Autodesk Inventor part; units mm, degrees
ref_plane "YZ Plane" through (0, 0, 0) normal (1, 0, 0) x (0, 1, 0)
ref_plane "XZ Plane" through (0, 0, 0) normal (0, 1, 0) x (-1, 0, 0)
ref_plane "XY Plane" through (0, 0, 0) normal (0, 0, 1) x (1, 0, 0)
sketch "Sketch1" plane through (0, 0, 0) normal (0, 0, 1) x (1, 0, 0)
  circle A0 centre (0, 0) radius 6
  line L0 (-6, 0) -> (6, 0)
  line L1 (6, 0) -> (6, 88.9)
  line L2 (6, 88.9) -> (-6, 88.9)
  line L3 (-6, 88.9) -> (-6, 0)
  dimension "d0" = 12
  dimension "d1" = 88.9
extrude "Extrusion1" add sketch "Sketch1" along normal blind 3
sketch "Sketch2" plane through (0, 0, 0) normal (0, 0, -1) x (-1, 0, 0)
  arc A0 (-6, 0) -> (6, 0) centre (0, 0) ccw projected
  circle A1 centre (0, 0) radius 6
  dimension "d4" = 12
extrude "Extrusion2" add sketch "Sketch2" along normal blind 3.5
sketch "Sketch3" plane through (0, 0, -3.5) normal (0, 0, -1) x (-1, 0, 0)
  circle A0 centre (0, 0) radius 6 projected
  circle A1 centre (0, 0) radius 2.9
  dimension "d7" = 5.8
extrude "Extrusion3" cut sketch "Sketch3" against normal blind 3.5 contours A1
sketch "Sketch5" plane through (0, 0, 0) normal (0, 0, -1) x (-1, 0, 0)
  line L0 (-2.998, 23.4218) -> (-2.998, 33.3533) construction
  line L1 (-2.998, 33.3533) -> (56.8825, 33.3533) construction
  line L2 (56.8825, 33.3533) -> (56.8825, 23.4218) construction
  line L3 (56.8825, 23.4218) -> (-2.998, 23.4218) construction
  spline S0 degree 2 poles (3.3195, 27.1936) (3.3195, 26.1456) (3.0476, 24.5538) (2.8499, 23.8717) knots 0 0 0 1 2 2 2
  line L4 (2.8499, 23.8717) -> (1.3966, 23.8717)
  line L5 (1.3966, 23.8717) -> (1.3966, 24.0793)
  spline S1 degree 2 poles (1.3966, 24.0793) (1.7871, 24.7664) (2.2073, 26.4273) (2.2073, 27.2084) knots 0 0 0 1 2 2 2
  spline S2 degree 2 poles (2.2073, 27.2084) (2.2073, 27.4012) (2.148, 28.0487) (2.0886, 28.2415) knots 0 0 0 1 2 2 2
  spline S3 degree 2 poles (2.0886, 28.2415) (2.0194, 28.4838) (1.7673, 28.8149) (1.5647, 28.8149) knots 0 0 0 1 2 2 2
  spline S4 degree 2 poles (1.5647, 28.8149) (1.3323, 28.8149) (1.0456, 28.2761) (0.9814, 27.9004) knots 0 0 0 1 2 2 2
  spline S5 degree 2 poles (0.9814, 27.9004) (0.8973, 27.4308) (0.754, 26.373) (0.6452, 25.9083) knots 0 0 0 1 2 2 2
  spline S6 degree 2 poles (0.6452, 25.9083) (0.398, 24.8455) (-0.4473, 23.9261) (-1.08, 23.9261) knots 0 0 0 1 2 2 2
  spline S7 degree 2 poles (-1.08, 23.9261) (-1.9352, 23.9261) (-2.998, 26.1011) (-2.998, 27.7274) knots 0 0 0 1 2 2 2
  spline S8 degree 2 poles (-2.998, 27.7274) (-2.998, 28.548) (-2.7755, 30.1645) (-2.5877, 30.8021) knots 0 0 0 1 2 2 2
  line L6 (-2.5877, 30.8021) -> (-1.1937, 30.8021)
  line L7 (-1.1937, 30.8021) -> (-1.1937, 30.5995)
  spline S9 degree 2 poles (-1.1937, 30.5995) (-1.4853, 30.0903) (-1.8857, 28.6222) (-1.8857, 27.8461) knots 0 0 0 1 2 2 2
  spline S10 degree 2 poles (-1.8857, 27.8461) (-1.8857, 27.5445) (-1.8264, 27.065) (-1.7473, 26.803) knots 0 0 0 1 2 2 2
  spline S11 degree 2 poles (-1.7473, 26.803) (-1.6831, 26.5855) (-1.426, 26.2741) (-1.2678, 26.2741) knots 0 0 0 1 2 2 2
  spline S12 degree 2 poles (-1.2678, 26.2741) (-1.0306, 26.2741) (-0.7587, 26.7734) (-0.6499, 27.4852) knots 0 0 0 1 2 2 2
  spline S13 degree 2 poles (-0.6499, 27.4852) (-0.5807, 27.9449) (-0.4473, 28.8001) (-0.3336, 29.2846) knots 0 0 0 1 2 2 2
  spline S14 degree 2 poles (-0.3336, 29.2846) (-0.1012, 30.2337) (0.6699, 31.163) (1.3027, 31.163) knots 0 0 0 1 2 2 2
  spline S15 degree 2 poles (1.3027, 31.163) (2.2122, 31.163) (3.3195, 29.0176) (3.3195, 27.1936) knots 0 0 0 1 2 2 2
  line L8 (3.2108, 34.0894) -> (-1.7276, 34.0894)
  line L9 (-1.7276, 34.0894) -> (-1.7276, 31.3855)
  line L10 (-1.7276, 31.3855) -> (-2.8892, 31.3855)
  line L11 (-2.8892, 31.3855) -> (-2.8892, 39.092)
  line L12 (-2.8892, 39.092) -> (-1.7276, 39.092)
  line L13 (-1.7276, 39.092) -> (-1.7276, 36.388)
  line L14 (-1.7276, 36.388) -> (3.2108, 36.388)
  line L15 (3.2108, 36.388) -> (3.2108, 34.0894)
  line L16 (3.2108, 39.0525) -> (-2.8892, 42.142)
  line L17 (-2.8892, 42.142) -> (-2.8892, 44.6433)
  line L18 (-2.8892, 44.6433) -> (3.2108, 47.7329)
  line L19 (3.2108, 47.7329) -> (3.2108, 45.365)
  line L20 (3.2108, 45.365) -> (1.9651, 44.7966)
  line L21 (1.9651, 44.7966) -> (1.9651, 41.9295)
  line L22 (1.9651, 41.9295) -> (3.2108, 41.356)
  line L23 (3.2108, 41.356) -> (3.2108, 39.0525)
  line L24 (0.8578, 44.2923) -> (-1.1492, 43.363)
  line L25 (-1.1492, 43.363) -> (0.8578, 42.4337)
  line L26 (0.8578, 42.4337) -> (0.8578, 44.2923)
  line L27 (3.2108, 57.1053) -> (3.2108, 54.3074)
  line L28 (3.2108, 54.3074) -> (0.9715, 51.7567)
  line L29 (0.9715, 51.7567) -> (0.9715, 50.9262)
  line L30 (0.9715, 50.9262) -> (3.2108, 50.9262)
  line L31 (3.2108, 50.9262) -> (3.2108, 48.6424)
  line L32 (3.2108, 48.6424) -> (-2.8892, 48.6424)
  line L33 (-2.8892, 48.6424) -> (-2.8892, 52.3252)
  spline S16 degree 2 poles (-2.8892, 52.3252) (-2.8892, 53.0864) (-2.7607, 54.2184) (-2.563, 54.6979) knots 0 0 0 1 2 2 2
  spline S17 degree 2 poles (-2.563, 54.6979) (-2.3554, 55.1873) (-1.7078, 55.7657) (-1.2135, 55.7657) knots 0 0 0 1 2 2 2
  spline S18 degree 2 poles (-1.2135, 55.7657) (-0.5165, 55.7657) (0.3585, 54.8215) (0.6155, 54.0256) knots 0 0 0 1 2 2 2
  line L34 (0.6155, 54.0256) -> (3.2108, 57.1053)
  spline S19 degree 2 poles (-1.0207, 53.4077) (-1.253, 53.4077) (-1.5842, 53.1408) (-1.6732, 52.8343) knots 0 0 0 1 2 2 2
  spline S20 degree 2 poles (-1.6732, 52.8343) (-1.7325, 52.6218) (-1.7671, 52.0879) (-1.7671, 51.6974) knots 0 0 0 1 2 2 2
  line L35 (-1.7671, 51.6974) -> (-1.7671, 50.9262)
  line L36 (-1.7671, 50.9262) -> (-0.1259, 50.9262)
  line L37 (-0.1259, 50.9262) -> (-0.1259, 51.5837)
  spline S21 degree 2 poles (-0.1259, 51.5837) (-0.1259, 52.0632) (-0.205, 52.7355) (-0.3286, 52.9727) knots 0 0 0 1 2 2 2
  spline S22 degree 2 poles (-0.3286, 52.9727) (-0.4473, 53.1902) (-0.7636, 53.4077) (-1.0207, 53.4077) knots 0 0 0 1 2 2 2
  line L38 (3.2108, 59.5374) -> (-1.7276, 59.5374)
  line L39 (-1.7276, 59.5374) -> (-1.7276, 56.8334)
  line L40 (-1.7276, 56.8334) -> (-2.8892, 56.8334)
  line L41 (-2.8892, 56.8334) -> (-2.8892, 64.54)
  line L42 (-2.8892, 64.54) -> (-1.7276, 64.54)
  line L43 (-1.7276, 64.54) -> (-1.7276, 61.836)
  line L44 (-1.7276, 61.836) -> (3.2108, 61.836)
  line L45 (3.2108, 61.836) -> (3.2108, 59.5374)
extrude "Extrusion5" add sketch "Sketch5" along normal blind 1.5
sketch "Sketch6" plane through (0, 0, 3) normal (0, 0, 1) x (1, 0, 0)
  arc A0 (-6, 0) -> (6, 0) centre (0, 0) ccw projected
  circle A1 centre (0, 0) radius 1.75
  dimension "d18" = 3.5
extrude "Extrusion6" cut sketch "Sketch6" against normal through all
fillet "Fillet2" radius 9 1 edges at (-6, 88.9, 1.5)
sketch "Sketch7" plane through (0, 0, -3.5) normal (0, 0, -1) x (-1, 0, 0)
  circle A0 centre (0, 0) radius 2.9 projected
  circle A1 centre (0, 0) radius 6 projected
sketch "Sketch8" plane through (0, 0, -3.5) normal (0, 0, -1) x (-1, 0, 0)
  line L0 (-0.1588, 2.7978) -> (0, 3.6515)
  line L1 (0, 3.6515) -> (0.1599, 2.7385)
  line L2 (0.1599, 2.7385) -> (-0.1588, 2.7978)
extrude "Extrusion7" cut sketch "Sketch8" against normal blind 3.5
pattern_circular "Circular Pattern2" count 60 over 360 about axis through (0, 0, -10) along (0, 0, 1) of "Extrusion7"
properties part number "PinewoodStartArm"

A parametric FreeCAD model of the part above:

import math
import FreeCAD as App
import Part
import Sketcher
from FreeCAD import Vector
Q = App.Units.Quantity


def edges_at(feature, points):
    """Names of the edges that pass closest to the given points."""
    edges = feature.Shape.Edges
    near = lambda p: min(range(len(edges)), key=lambda i: edges[i].distToShape(Part.Vertex(*p))[0])
    return sorted({f"Edge{near(p) + 1}" for p in points})

doc = App.newDocument("Part")
body = doc.addObject("PartDesign::Body", "Body")

sketch1 = body.newObject("Sketcher::SketchObject", "Sketch")
sketch1.AttachmentSupport = (doc.getObject("XY_Plane"), [""])
sketch1.MapMode = "FlatFace"
sketch1.addGeometry([
    Part.ArcOfCircle(Part.Circle(Vector(0, 0, 0), Vector(0, 0, 1), 6), math.radians(180), math.radians(360)),
    Part.LineSegment(Vector(6, 0, 0), Vector(6, 88.9, 0)),
    Part.LineSegment(Vector(6, 88.9, 0), Vector(-6, 88.9, 0)),
    Part.LineSegment(Vector(-6, 88.9, 0), Vector(-6, 0, 0)),
], False)
sketch1.addConstraint([
    Sketcher.Constraint("Tangent", 0, 2, 1, 1),
    Sketcher.Constraint("Coincident", 1, 2, 2, 1),
    Sketcher.Constraint("Coincident", 2, 2, 3, 1),
    Sketcher.Constraint("Tangent", 3, 2, 0, 1),
    Sketcher.Constraint("Vertical", 1),
    Sketcher.Constraint("Horizontal", 2),
    Sketcher.Constraint("Vertical", 3),
    Sketcher.Constraint("Coincident", 0, 3, -1, 1),
    Sketcher.Constraint("Radius", 0, Q("6 mm")),
    Sketcher.Constraint("DistanceY", 1, 1, 1, 2, Q("88.9 mm")),
])
pad1 = body.newObject("PartDesign::Pad", "Pad")
pad1.Profile = sketch1
pad1.Length = 3

sketch2 = body.newObject("Sketcher::SketchObject", "Sketch001")
sketch2.AttachmentSupport = (doc.getObject("XY_Plane"), [""])
sketch2.MapMode = "FlatFace"
sketch2.addGeometry(Part.Circle(Vector(0, 0, 0), Vector(0, 0, 1), 6), False)
sketch2.addConstraint([
    Sketcher.Constraint("Coincident", 0, 3, -1, 1),
    Sketcher.Constraint("Diameter", 0, Q("12 mm")),
])
pad2 = body.newObject("PartDesign::Pad", "Pad001")
pad2.Profile = sketch2
pad2.Length = 3.5
pad2.Reversed = True

sketch3 = body.newObject("Sketcher::SketchObject", "Sketch002")
sketch3.AttachmentSupport = (doc.getObject("XY_Plane"), [""])
sketch3.MapMode = "FlatFace"
sketch3.AttachmentOffset = App.Placement(Vector(0, 0, -3.5), App.Rotation())
sketch3.addGeometry(Part.Circle(Vector(0, 0, 0), Vector(0, 0, 1), 2.9), False)
sketch3.addConstraint([
    Sketcher.Constraint("Coincident", 0, 3, -1, 1),
    Sketcher.Constraint("Diameter", 0, Q("5.8 mm")),
])
pocket1 = body.newObject("PartDesign::Pocket", "Pocket")
pocket1.Profile = sketch3
pocket1.Length = 3.5
pocket1.Reversed = True

sketch4 = body.newObject("Sketcher::SketchObject", "Sketch003")
sketch4.AttachmentSupport = (doc.getObject("XY_Plane"), [""])
sketch4.MapMode = "FlatFace"
sketch4.addGeometry([
    Part.BSplineCurve([Vector(-3.3195, 27.1936, 0), Vector(-3.3195, 26.1456, 0), Vector(-3.0476, 24.5538, 0), Vector(-2.8499, 23.8717, 0)], [3, 1, 3], [0, 1, 2], False, 2, [1, 1, 1, 1], False),
    Part.BSplineCurve([Vector(-1.3027, 31.163, 0), Vector(-2.2122, 31.163, 0), Vector(-3.3195, 29.0176, 0), Vector(-3.3195, 27.1936, 0)], [3, 1, 3], [0, 1, 2], False, 2, [1, 1, 1, 1], False),
    Part.BSplineCurve([Vector(0.3336, 29.2846, 0), Vector(0.1012, 30.2337, 0), Vector(-0.6699, 31.163, 0), Vector(-1.3027, 31.163, 0)], [3, 1, 3], [0, 1, 2], False, 2, [1, 1, 1, 1], False),
    Part.BSplineCurve([Vector(0.6499, 27.4852, 0), Vector(0.5807, 27.9449, 0), Vector(0.4473, 28.8001, 0), Vector(0.3336, 29.2846, 0)], [3, 1, 3], [0, 1, 2], False, 2, [1, 1, 1, 1], False),
    Part.BSplineCurve([Vector(1.2678, 26.2741, 0), Vector(1.0306, 26.2741, 0), Vector(0.7587, 26.7734, 0), Vector(0.6499, 27.4852, 0)], [3, 1, 3], [0, 1, 2], False, 2, [1, 1, 1, 1], False),
    Part.BSplineCurve([Vector(1.7473, 26.803, 0), Vector(1.6831, 26.5855, 0), Vector(1.426, 26.2741, 0), Vector(1.2678, 26.2741, 0)], [3, 1, 3], [0, 1, 2], False, 2, [1, 1, 1, 1], False),
    Part.BSplineCurve([Vector(1.8857, 27.8461, 0), Vector(1.8857, 27.5445, 0), Vector(1.8264, 27.065, 0), Vector(1.7473, 26.803, 0)], [3, 1, 3], [0, 1, 2], False, 2, [1, 1, 1, 1], False),
    Part.BSplineCurve([Vector(1.1937, 30.5995, 0), Vector(1.4853, 30.0903, 0), Vector(1.8857, 28.6222, 0), Vector(1.8857, 27.8461, 0)], [3, 1, 3], [0, 1, 2], False, 2, [1, 1, 1, 1], False),
    Part.LineSegment(Vector(1.1937, 30.5995, 0), Vector(1.1937, 30.8021, 0)),
    Part.LineSegment(Vector(1.1937, 30.8021, 0), Vector(2.5877, 30.8021, 0)),
    Part.BSplineCurve([Vector(2.998, 27.7274, 0), Vector(2.998, 28.548, 0), Vector(2.7755, 30.1645, 0), Vector(2.5877, 30.8021, 0)], [3, 1, 3], [0, 1, 2], False, 2, [1, 1, 1, 1], False),
    Part.BSplineCurve([Vector(1.08, 23.9261, 0), Vector(1.9352, 23.9261, 0), Vector(2.998, 26.1011, 0), Vector(2.998, 27.7274, 0)], [3, 1, 3], [0, 1, 2], False, 2, [1, 1, 1, 1], False),
    Part.BSplineCurve([Vector(-0.6452, 25.9083, 0), Vector(-0.398, 24.8455, 0), Vector(0.4473, 23.9261, 0), Vector(1.08, 23.9261, 0)], [3, 1, 3], [0, 1, 2], False, 2, [1, 1, 1, 1], False),
    Part.BSplineCurve([Vector(-0.9814, 27.9004, 0), Vector(-0.8973, 27.4308, 0), Vector(-0.754, 26.373, 0), Vector(-0.6452, 25.9083, 0)], [3, 1, 3], [0, 1, 2], False, 2, [1, 1, 1, 1], False),
    Part.BSplineCurve([Vector(-1.5647, 28.8149, 0), Vector(-1.3323, 28.8149, 0), Vector(-1.0456, 28.2761, 0), Vector(-0.9814, 27.9004, 0)], [3, 1, 3], [0, 1, 2], False, 2, [1, 1, 1, 1], False),
    Part.BSplineCurve([Vector(-2.0886, 28.2415, 0), Vector(-2.0194, 28.4838, 0), Vector(-1.7673, 28.8149, 0), Vector(-1.5647, 28.8149, 0)], [3, 1, 3], [0, 1, 2], False, 2, [1, 1, 1, 1], False),
    Part.BSplineCurve([Vector(-2.2073, 27.2084, 0), Vector(-2.2073, 27.4012, 0), Vector(-2.148, 28.0487, 0), Vector(-2.0886, 28.2415, 0)], [3, 1, 3], [0, 1, 2], False, 2, [1, 1, 1, 1], False),
    Part.BSplineCurve([Vector(-1.3966, 24.0793, 0), Vector(-1.7871, 24.7664, 0), Vector(-2.2073, 26.4273, 0), Vector(-2.2073, 27.2084, 0)], [3, 1, 3], [0, 1, 2], False, 2, [1, 1, 1, 1], False),
    Part.LineSegment(Vector(-1.3966, 24.0793, 0), Vector(-1.3966, 23.8717, 0)),
    Part.LineSegment(Vector(-1.3966, 23.8717, 0), Vector(-2.8499, 23.8717, 0)),
    Part.LineSegment(Vector(1.7276, 34.0894, 0), Vector(-3.2108, 34.0894, 0)),
    Part.LineSegment(Vector(-3.2108, 34.0894, 0), Vector(-3.2108, 36.388, 0)),
    Part.LineSegment(Vector(-3.2108, 36.388, 0), Vector(1.7276, 36.388, 0)),
    Part.LineSegment(Vector(1.7276, 36.388, 0), Vector(1.7276, 39.092, 0)),
    Part.LineSegment(Vector(1.7276, 39.092, 0), Vector(2.8892, 39.092, 0)),
    Part.LineSegment(Vector(2.8892, 39.092, 0), Vector(2.8892, 31.3855, 0)),
    Part.LineSegment(Vector(2.8892, 31.3855, 0), Vector(1.7276, 31.3855, 0)),
    Part.LineSegment(Vector(1.7276, 31.3855, 0), Vector(1.7276, 34.0894, 0)),
    Part.LineSegment(Vector(2.8892, 42.142, 0), Vector(-3.2108, 39.0525, 0)),
    Part.LineSegment(Vector(-3.2108, 39.0525, 0), Vector(-3.2108, 41.356, 0)),
    Part.LineSegment(Vector(-3.2108, 41.356, 0), Vector(-1.9651, 41.9295, 0)),
    Part.LineSegment(Vector(-1.9651, 41.9295, 0), Vector(-1.9651, 44.7966, 0)),
    Part.LineSegment(Vector(-1.9651, 44.7966, 0), Vector(-3.2108, 45.365, 0)),
    Part.LineSegment(Vector(-3.2108, 45.365, 0), Vector(-3.2108, 47.7329, 0)),
    Part.LineSegment(Vector(-3.2108, 47.7329, 0), Vector(2.8892, 44.6433, 0)),
    Part.LineSegment(Vector(2.8892, 44.6433, 0), Vector(2.8892, 42.142, 0)),
    Part.LineSegment(Vector(1.1492, 43.363, 0), Vector(-0.8578, 44.2923, 0)),
    Part.LineSegment(Vector(-0.8578, 44.2923, 0), Vector(-0.8578, 42.4337, 0)),
    Part.LineSegment(Vector(-0.8578, 42.4337, 0), Vector(1.1492, 43.363, 0)),
    Part.LineSegment(Vector(-3.2108, 54.3074, 0), Vector(-3.2108, 57.1053, 0)),
    Part.LineSegment(Vector(-3.2108, 57.1053, 0), Vector(-0.6155, 54.0256, 0)),
    Part.BSplineCurve([Vector(1.2135, 55.7657, 0), Vector(0.5165, 55.7657, 0), Vector(-0.3585, 54.8215, 0), Vector(-0.6155, 54.0256, 0)], [3, 1, 3], [0, 1, 2], False, 2, [1, 1, 1, 1], False),
    Part.BSplineCurve([Vector(2.563, 54.6979, 0), Vector(2.3554, 55.1873, 0), Vector(1.7078, 55.7657, 0), Vector(1.2135, 55.7657, 0)], [3, 1, 3], [0, 1, 2], False, 2, [1, 1, 1, 1], False),
    Part.BSplineCurve([Vector(2.8892, 52.3252, 0), Vector(2.8892, 53.0864, 0), Vector(2.7607, 54.2184, 0), Vector(2.563, 54.6979, 0)], [3, 1, 3], [0, 1, 2], False, 2, [1, 1, 1, 1], False),
    Part.LineSegment(Vector(2.8892, 52.3252, 0), Vector(2.8892, 48.6424, 0)),
    Part.LineSegment(Vector(2.8892, 48.6424, 0), Vector(-3.2108, 48.6424, 0)),
    Part.LineSegment(Vector(-3.2108, 48.6424, 0), Vector(-3.2108, 50.9262, 0)),
    Part.LineSegment(Vector(-3.2108, 50.9262, 0), Vector(-0.9715, 50.9262, 0)),
    Part.LineSegment(Vector(-0.9715, 50.9262, 0), Vector(-0.9715, 51.7567, 0)),
    Part.LineSegment(Vector(-0.9715, 51.7567, 0), Vector(-3.2108, 54.3074, 0)),
    Part.BSplineCurve([Vector(1.0207, 53.4077, 0), Vector(1.253, 53.4077, 0), Vector(1.5842, 53.1408, 0), Vector(1.6732, 52.8343, 0)], [3, 1, 3], [0, 1, 2], False, 2, [1, 1, 1, 1], False),
    Part.BSplineCurve([Vector(0.3286, 52.9727, 0), Vector(0.4473, 53.1902, 0), Vector(0.7636, 53.4077, 0), Vector(1.0207, 53.4077, 0)], [3, 1, 3], [0, 1, 2], False, 2, [1, 1, 1, 1], False),
    Part.BSplineCurve([Vector(0.1259, 51.5837, 0), Vector(0.1259, 52.0632, 0), Vector(0.205, 52.7355, 0), Vector(0.3286, 52.9727, 0)], [3, 1, 3], [0, 1, 2], False, 2, [1, 1, 1, 1], False),
    Part.LineSegment(Vector(0.1259, 51.5837, 0), Vector(0.1259, 50.9262, 0)),
    Part.LineSegment(Vector(0.1259, 50.9262, 0), Vector(1.7671, 50.9262, 0)),
    Part.LineSegment(Vector(1.7671, 50.9262, 0), Vector(1.7671, 51.6974, 0)),
    Part.BSplineCurve([Vector(1.6732, 52.8343, 0), Vector(1.7325, 52.6218, 0), Vector(1.7671, 52.0879, 0), Vector(1.7671, 51.6974, 0)], [3, 1, 3], [0, 1, 2], False, 2, [1, 1, 1, 1], False),
    Part.LineSegment(Vector(1.7276, 59.5374, 0), Vector(-3.2108, 59.5374, 0)),
    Part.LineSegment(Vector(-3.2108, 59.5374, 0), Vector(-3.2108, 61.836, 0)),
    Part.LineSegment(Vector(-3.2108, 61.836, 0), Vector(1.7276, 61.836, 0)),
    Part.LineSegment(Vector(1.7276, 61.836, 0), Vector(1.7276, 64.54, 0)),
    Part.LineSegment(Vector(1.7276, 64.54, 0), Vector(2.8892, 64.54, 0)),
    Part.LineSegment(Vector(2.8892, 64.54, 0), Vector(2.8892, 56.8334, 0)),
    Part.LineSegment(Vector(2.8892, 56.8334, 0), Vector(1.7276, 56.8334, 0)),
    Part.LineSegment(Vector(1.7276, 56.8334, 0), Vector(1.7276, 59.5374, 0)),
], False)
sketch4.addConstraint([
    Sketcher.Constraint("Block", 0),
    Sketcher.Constraint("Block", 1),
    Sketcher.Constraint("Block", 2),
    Sketcher.Constraint("Block", 3),
    Sketcher.Constraint("Block", 4),
    Sketcher.Constraint("Block", 5),
    Sketcher.Constraint("Block", 6),
    Sketcher.Constraint("Block", 7),
    Sketcher.Constraint("Block", 10),
    Sketcher.Constraint("Block", 11),
    Sketcher.Constraint("Block", 12),
    Sketcher.Constraint("Block", 13),
    Sketcher.Constraint("Block", 14),
    Sketcher.Constraint("Block", 15),
    Sketcher.Constraint("Block", 16),
    Sketcher.Constraint("Block", 17),
    Sketcher.Constraint("Block", 41),
    Sketcher.Constraint("Block", 42),
    Sketcher.Constraint("Block", 43),
    Sketcher.Constraint("Block", 50),
    Sketcher.Constraint("Block", 51),
    Sketcher.Constraint("Block", 52),
    Sketcher.Constraint("Block", 56),
    Sketcher.Constraint("Coincident", 7, 1, 8, 1),
    Sketcher.Constraint("Coincident", 8, 2, 9, 1),
    Sketcher.Constraint("Coincident", 9, 2, 10, 2),
    Sketcher.Constraint("Coincident", 17, 1, 18, 1),
    Sketcher.Constraint("Coincident", 18, 2, 19, 1),
    Sketcher.Constraint("Coincident", 19, 2, 0, 2),
    Sketcher.Constraint("Coincident", 20, 2, 21, 1),
    Sketcher.Constraint("Coincident", 21, 2, 22, 1),
    Sketcher.Constraint("Coincident", 22, 2, 23, 1),
    Sketcher.Constraint("Coincident", 23, 2, 24, 1),
    Sketcher.Constraint("Coincident", 24, 2, 25, 1),
    Sketcher.Constraint("Coincident", 25, 2, 26, 1),
    Sketcher.Constraint("Coincident", 26, 2, 27, 1),
    Sketcher.Constraint("Coincident", 27, 2, 20, 1),
    Sketcher.Constraint("Coincident", 28, 2, 29, 1),
    Sketcher.Constraint("Coincident", 29, 2, 30, 1),
    Sketcher.Constraint("Coincident", 30, 2, 31, 1),
    Sketcher.Constraint("Coincident", 31, 2, 32, 1),
    Sketcher.Constraint("Coincident", 32, 2, 33, 1),
    Sketcher.Constraint("Coincident", 33, 2, 34, 1),
    Sketcher.Constraint("Coincident", 34, 2, 35, 1),
    Sketcher.Constraint("Coincident", 35, 2, 28, 1),
    Sketcher.Constraint("Coincident", 36, 2, 37, 1),
    Sketcher.Constraint("Coincident", 37, 2, 38, 1),
    Sketcher.Constraint("Coincident", 38, 2, 36, 1),
    Sketcher.Constraint("Coincident", 39, 2, 40, 1),
    Sketcher.Constraint("Coincident", 40, 2, 41, 2),
    Sketcher.Constraint("Coincident", 43, 1, 44, 1),
    Sketcher.Constraint("Coincident", 44, 2, 45, 1),
    Sketcher.Constraint("Coincident", 45, 2, 46, 1),
    Sketcher.Constraint("Coincident", 46, 2, 47, 1),
    Sketcher.Constraint("Coincident", 47, 2, 48, 1),
    Sketcher.Constraint("Coincident", 48, 2, 49, 1),
    Sketcher.Constraint("Coincident", 49, 2, 39, 1),
    Sketcher.Constraint("Coincident", 52, 1, 53, 1),
    Sketcher.Constraint("Coincident", 53, 2, 54, 1),
    Sketcher.Constraint("Coincident", 54, 2, 55, 1),
    Sketcher.Constraint("Coincident", 55, 2, 56, 2),
    Sketcher.Constraint("Coincident", 57, 2, 58, 1),
    Sketcher.Constraint("Coincident", 58, 2, 59, 1),
    Sketcher.Constraint("Coincident", 59, 2, 60, 1),
    Sketcher.Constraint("Coincident", 60, 2, 61, 1),
    Sketcher.Constraint("Coincident", 61, 2, 62, 1),
    Sketcher.Constraint("Coincident", 62, 2, 63, 1),
    Sketcher.Constraint("Coincident", 63, 2, 64, 1),
    Sketcher.Constraint("Coincident", 64, 2, 57, 1),
    Sketcher.Constraint("Vertical", 8),
    Sketcher.Constraint("Horizontal", 9),
    Sketcher.Constraint("Vertical", 18),
    Sketcher.Constraint("Horizontal", 19),
    Sketcher.Constraint("Horizontal", 20),
    Sketcher.Constraint("Vertical", 21),
    Sketcher.Constraint("Horizontal", 22),
    Sketcher.Constraint("Vertical", 23),
    Sketcher.Constraint("Horizontal", 24),
    Sketcher.Constraint("Vertical", 25),
    Sketcher.Constraint("Horizontal", 26),
    Sketcher.Constraint("Vertical", 27),
    Sketcher.Constraint("Vertical", 29),
    Sketcher.Constraint("Vertical", 31),
    Sketcher.Constraint("Vertical", 33),
    Sketcher.Constraint("Vertical", 35),
    Sketcher.Constraint("Vertical", 37),
    Sketcher.Constraint("Vertical", 39),
    Sketcher.Constraint("Vertical", 44),
    Sketcher.Constraint("Horizontal", 45),
    Sketcher.Constraint("Vertical", 46),
    Sketcher.Constraint("Horizontal", 47),
    Sketcher.Constraint("Vertical", 48),
    Sketcher.Constraint("Vertical", 53),
    Sketcher.Constraint("Horizontal", 54),
    Sketcher.Constraint("Vertical", 55),
    Sketcher.Constraint("Horizontal", 57),
    Sketcher.Constraint("Vertical", 58),
    Sketcher.Constraint("Horizontal", 59),
    Sketcher.Constraint("Vertical", 60),
    Sketcher.Constraint("Horizontal", 61),
    Sketcher.Constraint("Vertical", 62),
    Sketcher.Constraint("Horizontal", 63),
    Sketcher.Constraint("Vertical", 64),
    Sketcher.Constraint("Horizontal", 47, 2, 53, 2),
    Sketcher.Constraint("Vertical", 23, 2, 26, 2),
    Sketcher.Constraint("Vertical", 21, 2, 28, 2),
    Sketcher.Constraint("Vertical", 29, 2, 32, 2),
    Sketcher.Constraint("Vertical", 25, 2, 34, 2),
    Sketcher.Constraint("Vertical", 33, 2, 39, 2),
    Sketcher.Constraint("Vertical", 35, 2, 44, 2),
    Sketcher.Constraint("Vertical", 39, 2, 45, 2),
    Sketcher.Constraint("Vertical", 49, 2, 57, 2),
    Sketcher.Constraint("Vertical", 27, 2, 59, 2),
    Sketcher.Constraint("Vertical", 44, 2, 61, 2),
    Sketcher.Constraint("Vertical", 60, 2, 63, 2),
    Sketcher.Constraint("Equal", 23, 27),
    Sketcher.Constraint("Equal", 21, 58),
    Sketcher.Constraint("Equal", 27, 60),
    Sketcher.Constraint("Equal", 25, 62),
    Sketcher.Constraint("Equal", 28, 34),
    Sketcher.Constraint("Equal", 36, 38),
    Sketcher.Constraint("DistanceX", 45, 2, 45, 1, Q("6.1 mm")),
    Sketcher.Constraint("Angle", 28, Q("-153.139 deg")),
    Sketcher.Constraint("Angle", 30, Q("24.7206 deg")),
    Sketcher.Constraint("Angle", 49, Q("131.2804 deg")),
    Sketcher.Constraint("DistanceY", 23, 1, 23, 2, Q("2.704 mm")),
    Sketcher.Constraint("DistanceY", 31, 1, 31, 2, Q("2.867 mm")),
    Sketcher.Constraint("DistanceY", 33, 1, 33, 2, Q("2.368 mm")),
    Sketcher.Constraint("DistanceY", 39, 1, 39, 2, Q("2.798 mm")),
    Sketcher.Constraint("DistanceY", -1, 1, 60, 2, Q("64.54 mm")),
    Sketcher.Constraint("DistanceX", 22, 2, 9, 2, Q("0.86 mm")),
    Sketcher.Constraint("DistanceY", 8, 2, 23, 2, Q("8.29 mm")),
    Sketcher.Constraint("DistanceY", 24, 2, 35, 2, Q("3.05 mm")),
    Sketcher.Constraint("DistanceX", 38, 2, 35, 2, Q("1.74 mm")),
    Sketcher.Constraint("DistanceY", 36, 2, 44, 2, Q("4.35 mm")),
    Sketcher.Constraint("DistanceY", 49, 2, 57, 2, Q("5.23 mm")),
    Sketcher.Constraint("DistanceX", 47, 1, 47, 2, Q("2.2393 mm")),
    Sketcher.Constraint("DistanceY", 21, 1, 21, 2, Q("2.2986 mm")),
    Sketcher.Constraint("DistanceY", 29, 1, 29, 2, Q("2.3035 mm")),
    Sketcher.Constraint("DistanceY", 35, 2, 35, 1, Q("2.5013 mm")),
    Sketcher.Constraint("DistanceY", 37, 2, 37, 1, Q("1.8586 mm")),
    Sketcher.Constraint("DistanceY", 44, 2, 44, 1, Q("3.6828 mm")),
    Sketcher.Constraint("DistanceY", 46, 1, 46, 2, Q("2.2838 mm")),
    Sketcher.Constraint("DistanceX", 30, 2, -1, 1, Q("1.965 mm")),
    Sketcher.Constraint("DistanceX", 32, 2, 36, 2, Q("2.353 mm")),
])
pad3 = body.newObject("PartDesign::Pad", "Pad002")
pad3.Profile = sketch4
pad3.Length = 1.5
pad3.Reversed = True

sketch5 = body.newObject("Sketcher::SketchObject", "Sketch004")
sketch5.AttachmentSupport = (doc.getObject("XY_Plane"), [""])
sketch5.MapMode = "FlatFace"
sketch5.AttachmentOffset = App.Placement(Vector(0, 0, 3), App.Rotation())
sketch5.addGeometry(Part.Circle(Vector(0, 0, 0), Vector(0, 0, 1), 1.75), False)
sketch5.addConstraint([
    Sketcher.Constraint("Coincident", 0, 3, -1, 1),
    Sketcher.Constraint("Diameter", 0, Q("3.5 mm")),
])
pocket2 = body.newObject("PartDesign::Pocket", "Pocket001")
pocket2.Profile = sketch5
pocket2.Type = "ThroughAll"
doc.recompute()

fillet = body.newObject("PartDesign::Fillet", "Fillet")
fillet.Base = (pocket2, edges_at(pocket2, [(-6, 88.9, 1.5)]))
fillet.Radius = 9

sketch6 = body.newObject("Sketcher::SketchObject", "Sketch005")
sketch6.AttachmentSupport = (doc.getObject("XY_Plane"), [""])
sketch6.MapMode = "FlatFace"
sketch6.AttachmentOffset = App.Placement(Vector(0, 0, -3.5), App.Rotation())
sketch6.addGeometry([
    Part.LineSegment(Vector(0, 3.6515, 0), Vector(0.1588, 2.7978, 0)),
    Part.LineSegment(Vector(0.1588, 2.7978, 0), Vector(-0.1599, 2.7385, 0)),
    Part.LineSegment(Vector(-0.1599, 2.7385, 0), Vector(0, 3.6515, 0)),
], False)
sketch6.addConstraint([
    Sketcher.Constraint("Coincident", 0, 2, 1, 1),
    Sketcher.Constraint("Coincident", 1, 2, 2, 1),
    Sketcher.Constraint("Coincident", 2, 2, 0, 1),
    Sketcher.Constraint("PointOnObject", 2, 2, -2),
    Sketcher.Constraint("Perpendicular", 0, 1),
    Sketcher.Constraint("Angle", 1, Q("-169.4596 deg")),
    Sketcher.Constraint("DistanceX", 1, 2, -1, 1, Q("0.16 mm")),
    Sketcher.Constraint("Distance", 2, Q("0.927 mm")),
    Sketcher.Constraint("DistanceY", -1, 1, 0, 2, Q("2.7978 mm")),
])
pocket3 = body.newObject("PartDesign::Pocket", "Pocket002")
pocket3.Profile = sketch6
pocket3.Length = 3.5
pocket3.Reversed = True
doc.recompute()

polarpattern = body.newObject("PartDesign::PolarPattern", "PolarPattern")
polarpattern.Originals = [pocket3]
polarpattern.Axis = (doc.getObject("Z_Axis"), [""])
polarpattern.Angle = 360
polarpattern.Occurrences = 60
body.Tip = polarpattern

doc.recompute()
